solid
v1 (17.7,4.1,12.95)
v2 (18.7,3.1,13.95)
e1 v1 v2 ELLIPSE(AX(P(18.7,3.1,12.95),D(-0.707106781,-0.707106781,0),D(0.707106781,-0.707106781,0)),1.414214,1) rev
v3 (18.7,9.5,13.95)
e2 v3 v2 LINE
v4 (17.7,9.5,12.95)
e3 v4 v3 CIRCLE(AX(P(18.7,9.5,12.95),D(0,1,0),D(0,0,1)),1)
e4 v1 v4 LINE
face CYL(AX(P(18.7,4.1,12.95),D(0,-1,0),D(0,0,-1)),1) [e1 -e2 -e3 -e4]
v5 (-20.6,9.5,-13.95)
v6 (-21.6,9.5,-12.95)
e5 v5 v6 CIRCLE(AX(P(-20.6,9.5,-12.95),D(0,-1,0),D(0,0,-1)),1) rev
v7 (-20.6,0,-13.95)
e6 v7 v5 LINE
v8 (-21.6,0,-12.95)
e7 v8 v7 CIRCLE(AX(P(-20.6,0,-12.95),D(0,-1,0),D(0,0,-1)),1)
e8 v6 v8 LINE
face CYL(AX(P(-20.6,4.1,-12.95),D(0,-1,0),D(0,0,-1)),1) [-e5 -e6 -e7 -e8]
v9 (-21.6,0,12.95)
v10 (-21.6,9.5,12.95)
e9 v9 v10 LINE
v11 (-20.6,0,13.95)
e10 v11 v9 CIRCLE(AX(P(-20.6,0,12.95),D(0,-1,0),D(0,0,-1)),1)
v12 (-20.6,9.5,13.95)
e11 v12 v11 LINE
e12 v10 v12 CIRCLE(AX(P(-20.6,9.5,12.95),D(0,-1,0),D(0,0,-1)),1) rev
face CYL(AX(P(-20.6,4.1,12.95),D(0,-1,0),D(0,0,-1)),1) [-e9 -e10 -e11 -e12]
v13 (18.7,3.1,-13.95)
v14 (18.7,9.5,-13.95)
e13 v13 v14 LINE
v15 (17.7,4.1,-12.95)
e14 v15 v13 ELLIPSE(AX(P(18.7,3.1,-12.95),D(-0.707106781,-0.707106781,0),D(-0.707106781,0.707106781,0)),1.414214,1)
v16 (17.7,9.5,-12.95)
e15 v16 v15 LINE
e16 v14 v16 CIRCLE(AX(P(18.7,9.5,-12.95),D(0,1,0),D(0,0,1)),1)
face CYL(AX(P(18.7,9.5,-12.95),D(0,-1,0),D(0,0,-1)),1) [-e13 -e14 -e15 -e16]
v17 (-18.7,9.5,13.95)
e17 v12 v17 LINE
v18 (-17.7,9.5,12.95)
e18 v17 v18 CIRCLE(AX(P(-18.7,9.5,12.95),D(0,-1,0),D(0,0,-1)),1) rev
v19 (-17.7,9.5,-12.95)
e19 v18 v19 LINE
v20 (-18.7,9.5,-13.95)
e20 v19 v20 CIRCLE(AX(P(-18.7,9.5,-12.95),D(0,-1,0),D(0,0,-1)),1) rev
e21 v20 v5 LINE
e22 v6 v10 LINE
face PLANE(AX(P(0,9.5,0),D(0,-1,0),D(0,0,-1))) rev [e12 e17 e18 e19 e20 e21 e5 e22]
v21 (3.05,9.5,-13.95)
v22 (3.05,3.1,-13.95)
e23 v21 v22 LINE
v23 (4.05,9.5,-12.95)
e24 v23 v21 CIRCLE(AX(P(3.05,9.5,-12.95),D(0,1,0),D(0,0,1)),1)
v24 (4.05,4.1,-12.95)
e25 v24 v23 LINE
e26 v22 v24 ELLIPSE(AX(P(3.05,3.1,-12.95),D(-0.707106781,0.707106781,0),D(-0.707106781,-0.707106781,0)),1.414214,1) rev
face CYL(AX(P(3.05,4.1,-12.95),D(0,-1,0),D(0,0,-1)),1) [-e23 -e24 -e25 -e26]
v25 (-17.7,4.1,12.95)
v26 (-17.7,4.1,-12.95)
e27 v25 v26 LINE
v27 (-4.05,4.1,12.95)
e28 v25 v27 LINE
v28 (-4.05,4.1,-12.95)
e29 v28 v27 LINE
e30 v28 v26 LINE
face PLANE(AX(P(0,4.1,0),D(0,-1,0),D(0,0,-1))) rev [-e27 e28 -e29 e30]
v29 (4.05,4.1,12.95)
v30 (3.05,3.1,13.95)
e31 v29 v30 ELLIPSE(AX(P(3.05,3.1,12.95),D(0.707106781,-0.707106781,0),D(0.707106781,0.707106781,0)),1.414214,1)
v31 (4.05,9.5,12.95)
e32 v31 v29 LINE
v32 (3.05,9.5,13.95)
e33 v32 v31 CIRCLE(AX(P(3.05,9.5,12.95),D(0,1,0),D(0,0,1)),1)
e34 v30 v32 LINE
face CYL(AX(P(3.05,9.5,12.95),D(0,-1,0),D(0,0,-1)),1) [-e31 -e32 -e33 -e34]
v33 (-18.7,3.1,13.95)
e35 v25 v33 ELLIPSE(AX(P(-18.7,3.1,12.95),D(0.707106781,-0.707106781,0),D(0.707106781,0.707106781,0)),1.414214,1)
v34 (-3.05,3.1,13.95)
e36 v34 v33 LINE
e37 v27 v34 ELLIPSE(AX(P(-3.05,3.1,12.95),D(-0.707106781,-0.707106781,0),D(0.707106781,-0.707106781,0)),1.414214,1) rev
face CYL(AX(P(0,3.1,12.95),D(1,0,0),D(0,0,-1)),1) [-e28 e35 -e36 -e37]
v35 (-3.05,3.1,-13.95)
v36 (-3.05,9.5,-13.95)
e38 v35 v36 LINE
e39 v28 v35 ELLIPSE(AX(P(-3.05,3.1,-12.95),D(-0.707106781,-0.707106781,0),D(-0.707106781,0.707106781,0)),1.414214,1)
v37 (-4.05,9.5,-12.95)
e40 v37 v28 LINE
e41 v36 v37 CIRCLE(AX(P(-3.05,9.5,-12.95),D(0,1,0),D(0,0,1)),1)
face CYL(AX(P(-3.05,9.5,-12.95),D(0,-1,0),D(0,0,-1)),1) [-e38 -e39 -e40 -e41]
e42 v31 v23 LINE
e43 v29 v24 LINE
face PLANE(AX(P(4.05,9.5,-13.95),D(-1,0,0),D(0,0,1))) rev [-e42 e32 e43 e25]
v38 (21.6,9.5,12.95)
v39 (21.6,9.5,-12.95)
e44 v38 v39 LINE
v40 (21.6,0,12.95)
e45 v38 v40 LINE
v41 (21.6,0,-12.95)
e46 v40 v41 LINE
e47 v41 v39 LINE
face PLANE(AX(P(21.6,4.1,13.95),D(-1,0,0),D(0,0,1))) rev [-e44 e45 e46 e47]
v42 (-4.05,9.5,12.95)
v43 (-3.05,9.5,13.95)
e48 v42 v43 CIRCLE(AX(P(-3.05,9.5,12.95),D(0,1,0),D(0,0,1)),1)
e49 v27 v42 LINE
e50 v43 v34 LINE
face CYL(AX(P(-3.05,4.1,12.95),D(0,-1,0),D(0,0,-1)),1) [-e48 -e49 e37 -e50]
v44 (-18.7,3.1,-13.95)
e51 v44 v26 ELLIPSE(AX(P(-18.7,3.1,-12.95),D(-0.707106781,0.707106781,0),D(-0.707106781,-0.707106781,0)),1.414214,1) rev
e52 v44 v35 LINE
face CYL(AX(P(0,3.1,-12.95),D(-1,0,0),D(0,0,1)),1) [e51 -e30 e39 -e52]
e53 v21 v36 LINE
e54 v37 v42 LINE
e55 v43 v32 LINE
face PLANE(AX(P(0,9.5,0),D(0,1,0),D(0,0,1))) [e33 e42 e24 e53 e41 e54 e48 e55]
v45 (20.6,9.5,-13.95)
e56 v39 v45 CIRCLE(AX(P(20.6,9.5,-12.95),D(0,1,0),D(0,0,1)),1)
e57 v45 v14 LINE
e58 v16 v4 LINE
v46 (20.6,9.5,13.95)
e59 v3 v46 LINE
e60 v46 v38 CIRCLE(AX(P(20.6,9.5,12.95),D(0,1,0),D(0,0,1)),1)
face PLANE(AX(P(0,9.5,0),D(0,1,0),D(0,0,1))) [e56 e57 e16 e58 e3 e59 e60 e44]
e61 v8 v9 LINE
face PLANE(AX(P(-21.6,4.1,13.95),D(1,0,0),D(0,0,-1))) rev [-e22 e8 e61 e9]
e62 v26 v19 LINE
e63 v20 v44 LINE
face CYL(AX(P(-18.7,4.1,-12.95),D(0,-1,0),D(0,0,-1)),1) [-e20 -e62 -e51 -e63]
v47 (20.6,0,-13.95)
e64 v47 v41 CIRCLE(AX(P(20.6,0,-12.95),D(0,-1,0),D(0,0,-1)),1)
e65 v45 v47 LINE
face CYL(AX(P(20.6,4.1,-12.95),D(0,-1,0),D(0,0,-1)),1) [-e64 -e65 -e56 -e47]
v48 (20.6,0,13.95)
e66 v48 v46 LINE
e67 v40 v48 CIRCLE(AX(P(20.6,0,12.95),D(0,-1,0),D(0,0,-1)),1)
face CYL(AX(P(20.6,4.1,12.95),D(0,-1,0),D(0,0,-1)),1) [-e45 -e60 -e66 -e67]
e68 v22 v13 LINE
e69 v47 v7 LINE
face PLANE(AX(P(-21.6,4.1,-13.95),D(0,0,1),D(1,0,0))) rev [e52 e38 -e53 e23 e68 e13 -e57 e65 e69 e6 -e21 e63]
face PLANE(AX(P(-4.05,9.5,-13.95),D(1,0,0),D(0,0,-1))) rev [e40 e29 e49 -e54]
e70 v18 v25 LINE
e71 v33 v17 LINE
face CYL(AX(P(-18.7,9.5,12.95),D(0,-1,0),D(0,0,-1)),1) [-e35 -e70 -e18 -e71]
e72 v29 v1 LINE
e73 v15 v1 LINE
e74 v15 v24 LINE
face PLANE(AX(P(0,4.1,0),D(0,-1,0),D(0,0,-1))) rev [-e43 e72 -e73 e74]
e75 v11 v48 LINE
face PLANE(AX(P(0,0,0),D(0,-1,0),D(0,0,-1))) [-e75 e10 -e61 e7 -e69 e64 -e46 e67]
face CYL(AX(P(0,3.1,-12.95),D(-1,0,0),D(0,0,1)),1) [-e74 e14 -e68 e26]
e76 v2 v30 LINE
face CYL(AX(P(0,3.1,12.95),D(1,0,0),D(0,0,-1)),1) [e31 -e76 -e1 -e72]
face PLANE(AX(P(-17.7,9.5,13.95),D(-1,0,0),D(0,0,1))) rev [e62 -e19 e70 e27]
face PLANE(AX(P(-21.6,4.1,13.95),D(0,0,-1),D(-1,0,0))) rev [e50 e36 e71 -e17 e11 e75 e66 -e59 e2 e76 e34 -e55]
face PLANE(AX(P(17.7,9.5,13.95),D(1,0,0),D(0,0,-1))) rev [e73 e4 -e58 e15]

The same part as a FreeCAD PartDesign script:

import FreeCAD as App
import Part
import Sketcher

V = App.Vector


def edges_at(feature, points):
    """Names of the edges that pass closest to the given points."""
    edges = feature.Shape.Edges
    near = lambda p: min(range(len(edges)), key=lambda i: edges[i].distToShape(Part.Vertex(*p))[0])
    return sorted({f"Edge{near(p) + 1}" for p in points})

doc = App.newDocument("Part")
body = doc.addObject("PartDesign::Body", "Body")

# Sketch on XZ plane
sketch1 = body.newObject("Sketcher::SketchObject", "Sketch")
sketch1.AttachmentSupport = (doc.getObject("XZ_Plane"), [""])
sketch1.MapMode = "FlatFace"
sketch1.addGeometry(Part.LineSegment(V(-22, -14, 0), V(-22, 14, 0)), False)
sketch1.addGeometry(Part.LineSegment(V(-22, 14, 0), V(22, 14, 0)), False)
sketch1.addGeometry(Part.LineSegment(V(22, 14, 0), V(22, -14, 0)), False)
sketch1.addGeometry(Part.LineSegment(V(22, -14, 0), V(-22, -14, 0)), False)
sketch1.addConstraint(Sketcher.Constraint("Coincident", 0, 2, 1, 1))
sketch1.addConstraint(Sketcher.Constraint("Coincident", 1, 2, 2, 1))
sketch1.addConstraint(Sketcher.Constraint("Coincident", 2, 2, 3, 1))
sketch1.addConstraint(Sketcher.Constraint("Coincident", 3, 2, 0, 1))
sketch1.addConstraint(Sketcher.Constraint("Vertical", 0))
sketch1.addConstraint(Sketcher.Constraint("Horizontal", 1))
sketch1.addConstraint(Sketcher.Constraint("Vertical", 2))
sketch1.addConstraint(Sketcher.Constraint("Horizontal", 3))
sketch1.addConstraint(Sketcher.Constraint("Symmetric", 0, 2, 2, 2, -1, 1))
sketch1.addConstraint(Sketcher.Constraint("DistanceX", 1, 1, 1, 2, 43.2))
sketch1.addConstraint(Sketcher.Constraint("DistanceY", 0, 1, 0, 2, 27.9))
pad1 = body.newObject("PartDesign::Pad", "Pad")
pad1.Profile = sketch1
pad1.Length = 4.1
pad1.Reversed = True

# Sketch on XZ plane
sketch2 = body.newObject("Sketcher::SketchObject", "Sketch001")
sketch2.AttachmentSupport = (doc.getObject("XZ_Plane"), [""])
sketch2.MapMode = "FlatFace"
sketch2.AttachmentOffset = App.Placement(V(0, 0, -4.1), App.Rotation())
sketch2.addGeometry(Part.LineSegment(V(-4, -13.9, 0), V(-4, 13.9, 0)), False)
sketch2.addGeometry(Part.LineSegment(V(-4, 13.9, 0), V(4, 13.9, 0)), False)
sketch2.addGeometry(Part.LineSegment(V(4, 13.9, 0), V(4, -13.9, 0)), False)
sketch2.addGeometry(Part.LineSegment(V(4, -13.9, 0), V(-4, -13.9, 0)), False)
sketch2.addGeometry(Part.LineSegment(V(-21.6, -13.9, 0), V(-21.6, 13.9, 0)), False)
sketch2.addGeometry(Part.LineSegment(V(-21.6, 13.9, 0), V(-17.7, 13.9, 0)), False)
sketch2.addGeometry(Part.LineSegment(V(-17.7, 13.9, 0), V(-17.7, -13.9, 0)), False)
sketch2.addGeometry(Part.LineSegment(V(-17.7, -13.9, 0), V(-21.6, -13.9, 0)), False)
sketch2.addGeometry(Part.LineSegment(V(17.7, -13.9, 0), V(17.7, 13.9, 0)), False)
sketch2.addGeometry(Part.LineSegment(V(17.7, 13.9, 0), V(21.6, 13.9, 0)), False)
sketch2.addGeometry(Part.LineSegment(V(21.6, 13.9, 0), V(21.6, -13.9, 0)), False)
sketch2.addGeometry(Part.LineSegment(V(21.6, -13.9, 0), V(17.7, -13.9, 0)), False)
sketch2.addConstraint(Sketcher.Constraint("Coincident", 0, 2, 1, 1))
sketch2.addConstraint(Sketcher.Constraint("Coincident", 1, 2, 2, 1))
sketch2.addConstraint(Sketcher.Constraint("Coincident", 2, 2, 3, 1))
sketch2.addConstraint(Sketcher.Constraint("Coincident", 3, 2, 0, 1))
sketch2.addConstraint(Sketcher.Constraint("Coincident", 4, 2, 5, 1))
sketch2.addConstraint(Sketcher.Constraint("Coincident", 5, 2, 6, 1))
sketch2.addConstraint(Sketcher.Constraint("Coincident", 6, 2, 7, 1))
sketch2.addConstraint(Sketcher.Constraint("Coincident", 7, 2, 4, 1))
sketch2.addConstraint(Sketcher.Constraint("Coincident", 8, 2, 9, 1))
sketch2.addConstraint(Sketcher.Constraint("Coincident", 9, 2, 10, 1))
sketch2.addConstraint(Sketcher.Constraint("Coincident", 10, 2, 11, 1))
sketch2.addConstraint(Sketcher.Constraint("Coincident", 11, 2, 8, 1))
sketch2.addConstraint(Sketcher.Constraint("Vertical", 0))
sketch2.addConstraint(Sketcher.Constraint("Horizontal", 1))
sketch2.addConstraint(Sketcher.Constraint("Vertical", 2))
sketch2.addConstraint(Sketcher.Constraint("Horizontal", 3))
sketch2.addConstraint(Sketcher.Constraint("Vertical", 4))
sketch2.addConstraint(Sketcher.Constraint("Horizontal", 5))
sketch2.addConstraint(Sketcher.Constraint("Vertical", 6))
sketch2.addConstraint(Sketcher.Constraint("Horizontal", 7))
sketch2.addConstraint(Sketcher.Constraint("Vertical", 8))
sketch2.addConstraint(Sketcher.Constraint("Horizontal", 9))
sketch2.addConstraint(Sketcher.Constraint("Vertical", 10))
sketch2.addConstraint(Sketcher.Constraint("Horizontal", 11))
sketch2.addConstraint(Sketcher.Constraint("Symmetric", 0, 2, 2, 2, -1, 1))
sketch2.addConstraint(Sketcher.Constraint("Symmetric", 6, 2, 8, 2, -1, 1))
sketch2.addConstraint(Sketcher.Constraint("Symmetric", 4, 2, 10, 2, -1, 1))
sketch2.addConstraint(Sketcher.Constraint("Horizontal", 1, 2, 4, 2))
sketch2.addConstraint(Sketcher.Constraint("Horizontal", 3, 2, 6, 2))
sketch2.addConstraint(Sketcher.Constraint("DistanceX", 1, 1, 1, 2, 8.1))
sketch2.addConstraint(Sketcher.Constraint("DistanceX", 5, 1, 5, 2, 3.9))
sketch2.addConstraint(Sketcher.Constraint("DistanceY", 0, 1, 0, 2, 27.9))
sketch2.addConstraint(Sketcher.Constraint("DistanceX", 4, 2, -1, 1, 21.6))
pad2 = body.newObject("PartDesign::Pad", "Pad001")
pad2.Profile = sketch2
pad2.Length = 5.4
pad2.Reversed = True
doc.recompute()

fillet = body.newObject("PartDesign::Fillet", "Fillet")
fillet.Base = (pad2, edges_at(pad2, [
    (-10.875, 4.1, -13.95),
    (10.875, 4.1, 13.95),
    (4.05, 6.8, 13.95),
    (4.05, 6.8, -13.95),
    (-4.05, 6.8, -13.95),
    (-4.05, 6.8, 13.95),
    (-10.875, 4.1, 13.95),
    (-17.7, 6.8, 13.95),
    (-17.7, 6.8, -13.95),
    (10.875, 4.1, -13.95),
    (17.7, 6.8, -13.95),
    (17.7, 6.8, 13.95),
    (21.6, 4.75, 13.95),
    (-21.6, 4.75, 13.95),
    (-21.6, 4.75, -13.95),
    (21.6, 4.75, -13.95),
]))
fillet.Radius = 1

doc.recompute()
